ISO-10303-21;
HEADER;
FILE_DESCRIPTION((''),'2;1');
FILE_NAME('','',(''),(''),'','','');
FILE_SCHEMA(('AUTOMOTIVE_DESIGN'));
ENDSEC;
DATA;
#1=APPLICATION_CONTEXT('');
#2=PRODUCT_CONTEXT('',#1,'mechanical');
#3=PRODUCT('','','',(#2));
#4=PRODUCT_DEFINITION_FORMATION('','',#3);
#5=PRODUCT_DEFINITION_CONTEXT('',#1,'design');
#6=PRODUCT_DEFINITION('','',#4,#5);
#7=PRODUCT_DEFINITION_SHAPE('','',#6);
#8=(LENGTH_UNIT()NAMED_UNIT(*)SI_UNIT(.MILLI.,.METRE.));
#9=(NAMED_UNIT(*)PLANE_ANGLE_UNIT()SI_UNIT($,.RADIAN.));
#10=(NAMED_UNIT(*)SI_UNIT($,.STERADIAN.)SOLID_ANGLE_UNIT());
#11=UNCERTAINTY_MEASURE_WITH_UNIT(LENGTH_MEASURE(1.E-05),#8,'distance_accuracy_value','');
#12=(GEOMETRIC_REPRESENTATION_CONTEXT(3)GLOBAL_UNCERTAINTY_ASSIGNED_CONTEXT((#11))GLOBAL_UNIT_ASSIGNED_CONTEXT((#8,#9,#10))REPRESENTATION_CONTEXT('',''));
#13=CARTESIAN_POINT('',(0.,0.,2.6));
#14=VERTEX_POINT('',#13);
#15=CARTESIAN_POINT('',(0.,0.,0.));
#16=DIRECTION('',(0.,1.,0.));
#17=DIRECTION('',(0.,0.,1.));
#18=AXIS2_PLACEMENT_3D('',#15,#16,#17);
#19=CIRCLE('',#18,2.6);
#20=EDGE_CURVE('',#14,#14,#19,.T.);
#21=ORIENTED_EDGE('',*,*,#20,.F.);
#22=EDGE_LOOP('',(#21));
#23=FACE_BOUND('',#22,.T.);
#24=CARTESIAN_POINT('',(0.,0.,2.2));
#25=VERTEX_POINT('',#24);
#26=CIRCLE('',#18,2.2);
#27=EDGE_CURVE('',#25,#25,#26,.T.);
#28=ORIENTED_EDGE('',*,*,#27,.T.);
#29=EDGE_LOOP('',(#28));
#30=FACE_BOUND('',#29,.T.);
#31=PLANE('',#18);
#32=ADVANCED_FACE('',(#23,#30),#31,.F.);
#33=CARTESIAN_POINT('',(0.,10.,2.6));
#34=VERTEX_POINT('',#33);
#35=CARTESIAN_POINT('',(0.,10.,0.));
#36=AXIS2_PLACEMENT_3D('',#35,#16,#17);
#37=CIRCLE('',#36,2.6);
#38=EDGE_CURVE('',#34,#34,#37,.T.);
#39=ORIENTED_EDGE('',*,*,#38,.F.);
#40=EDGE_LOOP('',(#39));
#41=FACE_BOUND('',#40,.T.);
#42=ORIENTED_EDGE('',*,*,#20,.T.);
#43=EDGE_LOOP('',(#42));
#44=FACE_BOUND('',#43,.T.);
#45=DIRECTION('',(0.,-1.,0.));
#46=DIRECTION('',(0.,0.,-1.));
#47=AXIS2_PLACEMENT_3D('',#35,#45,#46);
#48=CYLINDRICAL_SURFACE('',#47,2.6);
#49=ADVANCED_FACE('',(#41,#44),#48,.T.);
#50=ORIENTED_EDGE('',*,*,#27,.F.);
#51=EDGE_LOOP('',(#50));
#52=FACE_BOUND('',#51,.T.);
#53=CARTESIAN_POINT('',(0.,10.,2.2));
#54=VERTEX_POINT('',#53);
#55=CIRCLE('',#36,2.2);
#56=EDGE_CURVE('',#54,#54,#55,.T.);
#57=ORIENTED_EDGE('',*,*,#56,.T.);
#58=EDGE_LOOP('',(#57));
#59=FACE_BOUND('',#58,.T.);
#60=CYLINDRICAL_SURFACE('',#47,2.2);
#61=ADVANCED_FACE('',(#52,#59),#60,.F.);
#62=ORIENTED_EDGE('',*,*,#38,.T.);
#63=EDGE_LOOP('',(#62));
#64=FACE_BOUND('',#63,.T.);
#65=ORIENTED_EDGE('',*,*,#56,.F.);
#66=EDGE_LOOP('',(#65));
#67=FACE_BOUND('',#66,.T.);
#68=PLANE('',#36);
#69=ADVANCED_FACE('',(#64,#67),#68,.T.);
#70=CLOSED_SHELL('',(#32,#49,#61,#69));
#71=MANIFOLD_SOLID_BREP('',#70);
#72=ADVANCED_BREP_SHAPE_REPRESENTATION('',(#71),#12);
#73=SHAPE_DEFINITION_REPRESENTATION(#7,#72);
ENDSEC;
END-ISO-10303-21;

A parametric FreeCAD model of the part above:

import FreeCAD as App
import Part
import Sketcher
Q = App.Units.Quantity

doc = App.newDocument("Part")
params = doc.addObject("Spreadsheet::Sheet", "Params")
for row, (alias, value) in enumerate([
    ("sketch1_diameter", "5.2 mm"),
    ("sketch1_diameter2", "4.4 mm"),
    ("pad1_length", "10 mm"),
], start=1):
    params.set(f"A{row}", alias)
    params.set(f"B{row}", "=" + value)
    params.setAlias(f"B{row}", alias)

body = doc.addObject("PartDesign::Body", "Body")

# Sketch on XZ plane
sketch1 = body.newObject("Sketcher::SketchObject", "Sketch")
sketch1.AttachmentSupport = (doc.getObject("XZ_Plane"), [""])
sketch1.MapMode = "FlatFace"
sketch1.addGeometry(Part.Circle(App.Vector(0, 0, 0), App.Vector(0, 0, 1), 2.6), False)
sketch1.addGeometry(Part.Circle(App.Vector(0, 0, 0), App.Vector(0, 0, 1), 2.2), False)
sketch1.addConstraint(Sketcher.Constraint("Coincident", 0, 3, -1, 1))
sketch1.addConstraint(Sketcher.Constraint("Coincident", 1, 3, -1, 1))
sketch1.addConstraint(Sketcher.Constraint("Diameter", 0, Q("5.2 mm")))
sketch1.addConstraint(Sketcher.Constraint("Diameter", 1, Q("4.4 mm")))
sketch1.setExpression("Constraints[2]", "Params.sketch1_diameter")
sketch1.setExpression("Constraints[3]", "Params.sketch1_diameter2")
pad1 = body.newObject("PartDesign::Pad", "Pad")
pad1.Profile = sketch1
pad1.setExpression("Length", "Params.pad1_length")
pad1.Reversed = True

doc.recompute()
